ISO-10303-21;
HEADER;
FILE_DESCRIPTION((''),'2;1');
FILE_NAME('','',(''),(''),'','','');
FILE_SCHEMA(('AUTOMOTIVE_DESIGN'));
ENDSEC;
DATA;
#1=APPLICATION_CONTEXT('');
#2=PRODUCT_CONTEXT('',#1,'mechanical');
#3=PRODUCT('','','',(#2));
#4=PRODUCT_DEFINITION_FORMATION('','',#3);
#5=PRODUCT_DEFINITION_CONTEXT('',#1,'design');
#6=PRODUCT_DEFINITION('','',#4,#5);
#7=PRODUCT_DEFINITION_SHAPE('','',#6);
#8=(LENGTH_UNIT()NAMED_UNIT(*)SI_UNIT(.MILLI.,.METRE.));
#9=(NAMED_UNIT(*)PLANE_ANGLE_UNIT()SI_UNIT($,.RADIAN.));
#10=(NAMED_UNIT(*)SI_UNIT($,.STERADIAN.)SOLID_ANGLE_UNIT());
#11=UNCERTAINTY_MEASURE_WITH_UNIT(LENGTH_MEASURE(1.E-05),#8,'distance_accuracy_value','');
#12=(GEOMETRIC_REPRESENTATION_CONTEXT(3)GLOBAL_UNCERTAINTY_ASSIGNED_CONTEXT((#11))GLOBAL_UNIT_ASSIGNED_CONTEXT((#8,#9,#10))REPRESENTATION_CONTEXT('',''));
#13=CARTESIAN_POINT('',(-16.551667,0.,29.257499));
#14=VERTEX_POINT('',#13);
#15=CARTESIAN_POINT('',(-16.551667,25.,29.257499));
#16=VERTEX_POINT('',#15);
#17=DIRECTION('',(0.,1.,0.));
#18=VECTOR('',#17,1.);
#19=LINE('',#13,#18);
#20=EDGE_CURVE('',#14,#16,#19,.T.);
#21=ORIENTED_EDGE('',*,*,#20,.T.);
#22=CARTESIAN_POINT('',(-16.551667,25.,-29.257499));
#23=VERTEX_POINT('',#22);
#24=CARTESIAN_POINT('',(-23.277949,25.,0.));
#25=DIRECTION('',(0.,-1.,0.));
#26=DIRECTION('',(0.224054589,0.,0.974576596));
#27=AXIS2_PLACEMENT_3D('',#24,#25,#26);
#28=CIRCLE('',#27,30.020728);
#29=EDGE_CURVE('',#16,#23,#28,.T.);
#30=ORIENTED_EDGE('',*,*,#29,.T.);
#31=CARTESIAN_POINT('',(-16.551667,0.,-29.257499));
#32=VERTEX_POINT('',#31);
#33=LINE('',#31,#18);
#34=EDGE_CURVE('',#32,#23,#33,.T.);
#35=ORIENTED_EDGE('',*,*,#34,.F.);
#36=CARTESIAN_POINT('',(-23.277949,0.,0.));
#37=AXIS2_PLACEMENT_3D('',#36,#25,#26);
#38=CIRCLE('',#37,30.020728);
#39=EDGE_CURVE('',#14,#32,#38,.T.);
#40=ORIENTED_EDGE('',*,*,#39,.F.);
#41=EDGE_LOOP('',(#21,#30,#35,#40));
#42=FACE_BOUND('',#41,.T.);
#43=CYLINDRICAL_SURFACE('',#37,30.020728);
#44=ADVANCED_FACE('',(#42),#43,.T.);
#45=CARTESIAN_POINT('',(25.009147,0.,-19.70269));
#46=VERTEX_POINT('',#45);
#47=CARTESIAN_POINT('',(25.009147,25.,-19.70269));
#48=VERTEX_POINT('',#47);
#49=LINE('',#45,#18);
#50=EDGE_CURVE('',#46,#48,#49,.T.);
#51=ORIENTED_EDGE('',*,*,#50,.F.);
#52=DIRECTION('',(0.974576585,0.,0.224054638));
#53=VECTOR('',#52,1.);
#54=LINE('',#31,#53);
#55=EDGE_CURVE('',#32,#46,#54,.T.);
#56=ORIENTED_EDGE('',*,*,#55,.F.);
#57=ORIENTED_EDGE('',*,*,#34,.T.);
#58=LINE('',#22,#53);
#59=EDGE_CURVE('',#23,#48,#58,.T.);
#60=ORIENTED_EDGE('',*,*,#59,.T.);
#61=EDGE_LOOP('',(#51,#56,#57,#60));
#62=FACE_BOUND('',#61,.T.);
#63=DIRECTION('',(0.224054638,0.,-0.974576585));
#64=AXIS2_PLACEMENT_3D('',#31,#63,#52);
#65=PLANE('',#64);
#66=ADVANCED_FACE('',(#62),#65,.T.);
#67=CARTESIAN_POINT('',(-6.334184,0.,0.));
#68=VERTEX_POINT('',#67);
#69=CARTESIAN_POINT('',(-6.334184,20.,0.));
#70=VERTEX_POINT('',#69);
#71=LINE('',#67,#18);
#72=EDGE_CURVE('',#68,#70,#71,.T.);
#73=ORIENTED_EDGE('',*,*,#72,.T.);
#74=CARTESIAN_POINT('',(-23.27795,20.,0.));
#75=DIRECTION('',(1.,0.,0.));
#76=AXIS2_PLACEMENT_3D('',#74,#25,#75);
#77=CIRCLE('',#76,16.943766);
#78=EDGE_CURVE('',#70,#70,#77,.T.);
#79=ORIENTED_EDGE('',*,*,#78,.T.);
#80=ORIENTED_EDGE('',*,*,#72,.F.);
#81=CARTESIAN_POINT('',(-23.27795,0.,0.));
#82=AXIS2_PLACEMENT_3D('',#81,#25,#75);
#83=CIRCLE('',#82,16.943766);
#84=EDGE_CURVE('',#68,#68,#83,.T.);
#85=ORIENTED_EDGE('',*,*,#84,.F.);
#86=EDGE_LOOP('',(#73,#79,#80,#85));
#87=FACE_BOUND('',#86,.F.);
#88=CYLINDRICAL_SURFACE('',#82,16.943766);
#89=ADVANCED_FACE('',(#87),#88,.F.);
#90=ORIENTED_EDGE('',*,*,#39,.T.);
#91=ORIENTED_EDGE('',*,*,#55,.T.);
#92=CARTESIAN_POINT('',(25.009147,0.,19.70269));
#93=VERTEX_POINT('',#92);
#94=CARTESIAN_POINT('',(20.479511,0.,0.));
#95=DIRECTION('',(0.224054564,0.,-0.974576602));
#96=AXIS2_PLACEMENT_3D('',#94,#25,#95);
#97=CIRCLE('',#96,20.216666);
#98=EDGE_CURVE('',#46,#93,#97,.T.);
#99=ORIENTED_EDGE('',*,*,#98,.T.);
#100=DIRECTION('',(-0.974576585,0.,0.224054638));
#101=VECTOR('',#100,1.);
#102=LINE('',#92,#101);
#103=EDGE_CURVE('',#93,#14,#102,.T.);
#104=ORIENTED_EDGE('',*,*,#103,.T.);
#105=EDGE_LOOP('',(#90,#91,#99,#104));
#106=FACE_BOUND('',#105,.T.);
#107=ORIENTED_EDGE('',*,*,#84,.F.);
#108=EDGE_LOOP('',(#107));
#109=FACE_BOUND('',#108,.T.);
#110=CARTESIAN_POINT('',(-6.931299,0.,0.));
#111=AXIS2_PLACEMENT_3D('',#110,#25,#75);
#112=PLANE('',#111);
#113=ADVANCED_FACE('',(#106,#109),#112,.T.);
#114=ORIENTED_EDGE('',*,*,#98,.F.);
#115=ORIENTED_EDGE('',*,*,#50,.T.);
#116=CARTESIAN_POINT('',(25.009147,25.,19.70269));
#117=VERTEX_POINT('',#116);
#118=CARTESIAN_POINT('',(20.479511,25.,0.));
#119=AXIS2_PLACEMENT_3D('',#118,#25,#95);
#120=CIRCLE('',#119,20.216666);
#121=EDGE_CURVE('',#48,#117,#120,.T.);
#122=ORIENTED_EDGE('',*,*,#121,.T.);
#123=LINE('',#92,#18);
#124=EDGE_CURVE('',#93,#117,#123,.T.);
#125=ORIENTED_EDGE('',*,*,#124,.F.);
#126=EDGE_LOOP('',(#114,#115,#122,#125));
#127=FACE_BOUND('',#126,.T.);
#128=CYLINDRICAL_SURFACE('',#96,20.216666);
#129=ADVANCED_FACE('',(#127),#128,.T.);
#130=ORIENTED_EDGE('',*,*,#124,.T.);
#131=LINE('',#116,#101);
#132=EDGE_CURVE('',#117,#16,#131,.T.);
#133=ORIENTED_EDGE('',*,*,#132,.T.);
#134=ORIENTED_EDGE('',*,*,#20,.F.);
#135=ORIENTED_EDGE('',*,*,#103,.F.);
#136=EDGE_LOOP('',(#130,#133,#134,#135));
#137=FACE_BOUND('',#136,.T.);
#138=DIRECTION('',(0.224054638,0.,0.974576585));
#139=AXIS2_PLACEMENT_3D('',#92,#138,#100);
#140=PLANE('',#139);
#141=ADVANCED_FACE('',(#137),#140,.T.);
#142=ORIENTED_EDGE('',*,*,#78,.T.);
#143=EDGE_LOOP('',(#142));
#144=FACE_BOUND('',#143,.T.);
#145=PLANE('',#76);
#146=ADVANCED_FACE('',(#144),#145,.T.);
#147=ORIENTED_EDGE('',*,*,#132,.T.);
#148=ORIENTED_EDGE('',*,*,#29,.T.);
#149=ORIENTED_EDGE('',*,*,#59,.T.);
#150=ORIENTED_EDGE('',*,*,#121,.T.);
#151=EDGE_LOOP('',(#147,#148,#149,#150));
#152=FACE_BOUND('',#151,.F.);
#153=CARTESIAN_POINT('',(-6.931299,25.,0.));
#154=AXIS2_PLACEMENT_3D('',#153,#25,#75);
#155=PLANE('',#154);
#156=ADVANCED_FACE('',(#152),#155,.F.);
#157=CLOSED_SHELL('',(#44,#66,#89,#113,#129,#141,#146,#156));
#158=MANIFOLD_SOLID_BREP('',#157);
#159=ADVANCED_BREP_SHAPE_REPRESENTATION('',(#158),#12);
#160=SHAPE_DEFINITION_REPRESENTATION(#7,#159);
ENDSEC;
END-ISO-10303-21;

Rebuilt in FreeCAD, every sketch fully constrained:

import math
import FreeCAD as App
import Part
import Sketcher
from FreeCAD import Vector
Q = App.Units.Quantity

doc = App.newDocument("Part")
body = doc.addObject("PartDesign::Body", "Body")

# Sketch on XZ plane
sketch1 = body.newObject("Sketcher::SketchObject", "Sketch")
sketch1.AttachmentSupport = (doc.getObject("XZ_Plane"), [""])
sketch1.MapMode = "FlatFace"
sketch1.addGeometry(Part.LineSegment(Vector(25, 20, 0), Vector(-17, 29, 0)), False)
sketch1.addGeometry(Part.ArcOfCircle(Part.Circle(Vector(-23, 0, 0), Vector(0, 0, 1), 30), math.radians(77), math.radians(283)), False)
sketch1.addGeometry(Part.LineSegment(Vector(-17, -29, 0), Vector(25, -20, 0)), False)
sketch1.addGeometry(Part.ArcOfCircle(Part.Circle(Vector(20, 0, 0), Vector(0, 0, 1), 20), math.radians(-77), math.radians(77)), False)
sketch1.addConstraint(Sketcher.Constraint("Tangent", 0, 2, 1, 1))
sketch1.addConstraint(Sketcher.Constraint("Tangent", 1, 2, 2, 1))
sketch1.addConstraint(Sketcher.Constraint("Tangent", 2, 2, 3, 1))
sketch1.addConstraint(Sketcher.Constraint("Tangent", 3, 2, 0, 1))
sketch1.addConstraint(Sketcher.Constraint("Symmetric", 0, 2, 1, 2, -1))
sketch1.addConstraint(Sketcher.Constraint("Radius", 1, Q("30.020728 mm")))
sketch1.addConstraint(Sketcher.Constraint("Radius", 3, Q("20.216666 mm")))
sketch1.addConstraint(Sketcher.Constraint("DistanceY", 1, 2, 0, 2, Q("58.514998 mm")))
sketch1.addConstraint(Sketcher.Constraint("DistanceX", 1, 3, -1, 1, Q("23.277949 mm")))
pad1 = body.newObject("PartDesign::Pad", "Pad")
pad1.Profile = sketch1
pad1.Length = 25
pad1.Reversed = True

# Sketch on XZ plane
sketch2 = body.newObject("Sketcher::SketchObject", "Sketch001")
sketch2.AttachmentSupport = (doc.getObject("XZ_Plane"), [""])
sketch2.MapMode = "FlatFace"
sketch2.addGeometry(Part.Circle(Vector(-23, 0, 0), Vector(0, 0, 1), 17), False)
sketch2.addConstraint(Sketcher.Constraint("PointOnObject", 0, 3, -1))
sketch2.addConstraint(Sketcher.Constraint("Diameter", 0, Q("33.887532 mm")))
sketch2.addConstraint(Sketcher.Constraint("DistanceX", 0, 3, -1, 1, Q("23.27795 mm")))
pocket1 = body.newObject("PartDesign::Pocket", "Pocket")
pocket1.Profile = sketch2
pocket1.Length = 20

doc.recompute()
